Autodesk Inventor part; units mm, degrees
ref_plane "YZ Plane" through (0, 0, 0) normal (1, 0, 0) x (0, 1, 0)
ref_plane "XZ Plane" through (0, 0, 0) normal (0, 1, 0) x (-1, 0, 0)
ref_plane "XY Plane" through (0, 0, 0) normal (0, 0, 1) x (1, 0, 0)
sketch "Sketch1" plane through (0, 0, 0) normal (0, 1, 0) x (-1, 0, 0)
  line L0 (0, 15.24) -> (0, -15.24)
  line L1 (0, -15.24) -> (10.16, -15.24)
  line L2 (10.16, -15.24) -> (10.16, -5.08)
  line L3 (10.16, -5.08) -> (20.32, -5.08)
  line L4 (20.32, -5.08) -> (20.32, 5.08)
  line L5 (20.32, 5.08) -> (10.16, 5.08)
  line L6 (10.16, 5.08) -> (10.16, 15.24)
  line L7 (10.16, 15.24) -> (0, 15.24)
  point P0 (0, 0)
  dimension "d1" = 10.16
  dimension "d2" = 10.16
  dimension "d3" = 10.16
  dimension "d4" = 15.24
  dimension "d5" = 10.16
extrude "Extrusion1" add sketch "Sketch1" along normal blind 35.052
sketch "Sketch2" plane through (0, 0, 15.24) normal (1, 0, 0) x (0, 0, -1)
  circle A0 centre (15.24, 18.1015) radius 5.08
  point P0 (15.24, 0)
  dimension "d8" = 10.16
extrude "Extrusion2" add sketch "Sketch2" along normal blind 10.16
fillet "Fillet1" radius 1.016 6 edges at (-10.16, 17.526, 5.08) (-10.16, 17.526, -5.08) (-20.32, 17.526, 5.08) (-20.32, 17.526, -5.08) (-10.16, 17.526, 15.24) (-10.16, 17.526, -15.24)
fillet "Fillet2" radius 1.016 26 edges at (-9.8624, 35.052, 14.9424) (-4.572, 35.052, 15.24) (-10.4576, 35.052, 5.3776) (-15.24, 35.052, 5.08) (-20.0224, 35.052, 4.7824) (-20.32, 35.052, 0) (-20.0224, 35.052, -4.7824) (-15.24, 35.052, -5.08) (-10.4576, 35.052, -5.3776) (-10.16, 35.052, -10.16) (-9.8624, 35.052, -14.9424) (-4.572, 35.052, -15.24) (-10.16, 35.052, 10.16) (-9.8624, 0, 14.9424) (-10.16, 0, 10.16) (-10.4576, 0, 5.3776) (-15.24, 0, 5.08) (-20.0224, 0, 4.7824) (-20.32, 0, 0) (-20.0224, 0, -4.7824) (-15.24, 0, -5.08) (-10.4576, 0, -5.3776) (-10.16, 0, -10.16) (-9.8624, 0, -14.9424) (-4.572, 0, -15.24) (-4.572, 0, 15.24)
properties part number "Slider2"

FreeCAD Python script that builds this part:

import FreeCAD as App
import Part
import Sketcher
from FreeCAD import Vector
Q = App.Units.Quantity


def edges_at(feature, points):
    """Names of the edges that pass closest to the given points."""
    edges = feature.Shape.Edges
    near = lambda p: min(range(len(edges)), key=lambda i: edges[i].distToShape(Part.Vertex(*p))[0])
    return sorted({f"Edge{near(p) + 1}" for p in points})


def add_polygon(sketch, points):
    """Adds a closed chain of lines whose ends are joined by coincident constraints."""
    first, n = sketch.GeometryCount, len(points)
    for a, b in zip(points, points[1:] + points[:1]):
        sketch.addGeometry(Part.LineSegment(App.Vector(*a, 0), App.Vector(*b, 0)), False)
    for i in range(n):
        sketch.addConstraint(Sketcher.Constraint("Coincident", first + i, 2, first + (i + 1) % n, 1))

doc = App.newDocument("Part")
params = doc.addObject("Spreadsheet::Sheet", "Params")
for row, (alias, value) in enumerate([
    ("sketch1_width", "0.4 in"),
    ("pad1_length", "1.38 in"),
    ("sketch2_diameter", "0.4 in"),
    ("pad2_length", "0.4 in"),
    ("fillet_radius", "0.04 in"),
    ("fillet2_radius", "0.04 in"),
], start=1):
    params.set(f"A{row}", alias)
    params.set(f"B{row}", "=" + value)
    params.setAlias(f"B{row}", alias)

body = doc.addObject("PartDesign::Body", "Body")

sketch1 = body.newObject("Sketcher::SketchObject", "Sketch")
sketch1.AttachmentSupport = (doc.getObject("XZ_Plane"), [""])
sketch1.MapMode = "FlatFace"
add_polygon(sketch1, [(-10, 15), (0, 15), (0, -15), (-10, -15), (-10, -5), (-20, -5), (-20, 5), (-10, 5)])
sketch1.addConstraint([
    Sketcher.Constraint("Horizontal", 0),
    Sketcher.Constraint("Vertical", 1),
    Sketcher.Constraint("Horizontal", 2),
    Sketcher.Constraint("Vertical", 3),
    Sketcher.Constraint("Horizontal", 4),
    Sketcher.Constraint("Vertical", 5),
    Sketcher.Constraint("Horizontal", 6),
    Sketcher.Constraint("Vertical", 7),
    Sketcher.Constraint("Symmetric", 0, 2, 1, 2, -1, 1),
    Sketcher.Constraint("Symmetric", 3, 2, 6, 2, -1),
    Sketcher.Constraint("Equal", 2, 4),
    Sketcher.Constraint("Equal", 6, 3),
    Sketcher.Constraint("Equal", 3, 5),
    Sketcher.Constraint("DistanceX", 0, 1, 0, 2, Q("0.4 in")),
])
sketch1.setExpression("Constraints[21]", "Params.sketch1_width")
pad1 = body.newObject("PartDesign::Pad", "Pad")
pad1.Profile = sketch1
pad1.setExpression("Length", "Params.pad1_length")
pad1.Reversed = True

sketch2 = body.newObject("Sketcher::SketchObject", "Sketch001")
sketch2.AttachmentSupport = (doc.getObject("YZ_Plane"), [""])
sketch2.MapMode = "FlatFace"
sketch2.addGeometry(Part.Circle(Vector(18, 0, 0), Vector(0, 0, 1), 5), False)
sketch2.addConstraint([
    Sketcher.Constraint("PointOnObject", 0, 3, -1),
    Sketcher.Constraint("Diameter", 0, Q("0.4 in")),
    Sketcher.Constraint("DistanceX", -1, 1, 0, 3, 18.1015),
])
sketch2.setExpression("Constraints[1]", "Params.sketch2_diameter")
pad2 = body.newObject("PartDesign::Pad", "Pad001")
pad2.Profile = sketch2
pad2.setExpression("Length", "Params.pad2_length")
doc.recompute()

fillet = body.newObject("PartDesign::Fillet", "Fillet")
fillet.Base = (pad2, edges_at(pad2, [
    (-10.16, 17.526, 5.08),
    (-10.16, 17.526, -5.08),
    (-20.32, 17.526, 5.08),
    (-20.32, 17.526, -5.08),
    (-10.16, 17.526, 15.24),
    (-10.16, 17.526, -15.24),
]))
fillet.setExpression("Radius", "Params.fillet_radius")
doc.recompute()

fillet2 = body.newObject("PartDesign::Fillet", "Fillet001")
fillet2.Base = (fillet, edges_at(fillet, [
    (-9.862, 35.052, 14.942),
    (-4.572, 35.052, 15.24),
    (-10.458, 35.052, 5.378),
    (-15.24, 35.052, 5.08),
    (-20.022, 35.052, 4.782),
    (-20.32, 35.052, 0),
    (-20.022, 35.052, -4.782),
    (-15.24, 35.052, -5.08),
    (-10.458, 35.052, -5.378),
    (-10.16, 35.052, -10.16),
    (-9.862, 35.052, -14.942),
    (-4.572, 35.052, -15.24),
    (-10.16, 35.052, 10.16),
    (-9.862, 0, 14.942),
    (-10.16, 0, 10.16),
    (-10.458, 0, 5.378),
    (-15.24, 0, 5.08),
    (-20.022, 0, 4.782),
    (-20.32, 0, 0),
    (-20.022, 0, -4.782),
    (-15.24, 0, -5.08),
    (-10.458, 0, -5.378),
    (-10.16, 0, -10.16),
    (-9.862, 0, -14.942),
    (-4.572, 0, -15.24),
    (-4.572, 0, 15.24),
]))
fillet2.setExpression("Radius", "Params.fillet2_radius")

doc.recompute()
